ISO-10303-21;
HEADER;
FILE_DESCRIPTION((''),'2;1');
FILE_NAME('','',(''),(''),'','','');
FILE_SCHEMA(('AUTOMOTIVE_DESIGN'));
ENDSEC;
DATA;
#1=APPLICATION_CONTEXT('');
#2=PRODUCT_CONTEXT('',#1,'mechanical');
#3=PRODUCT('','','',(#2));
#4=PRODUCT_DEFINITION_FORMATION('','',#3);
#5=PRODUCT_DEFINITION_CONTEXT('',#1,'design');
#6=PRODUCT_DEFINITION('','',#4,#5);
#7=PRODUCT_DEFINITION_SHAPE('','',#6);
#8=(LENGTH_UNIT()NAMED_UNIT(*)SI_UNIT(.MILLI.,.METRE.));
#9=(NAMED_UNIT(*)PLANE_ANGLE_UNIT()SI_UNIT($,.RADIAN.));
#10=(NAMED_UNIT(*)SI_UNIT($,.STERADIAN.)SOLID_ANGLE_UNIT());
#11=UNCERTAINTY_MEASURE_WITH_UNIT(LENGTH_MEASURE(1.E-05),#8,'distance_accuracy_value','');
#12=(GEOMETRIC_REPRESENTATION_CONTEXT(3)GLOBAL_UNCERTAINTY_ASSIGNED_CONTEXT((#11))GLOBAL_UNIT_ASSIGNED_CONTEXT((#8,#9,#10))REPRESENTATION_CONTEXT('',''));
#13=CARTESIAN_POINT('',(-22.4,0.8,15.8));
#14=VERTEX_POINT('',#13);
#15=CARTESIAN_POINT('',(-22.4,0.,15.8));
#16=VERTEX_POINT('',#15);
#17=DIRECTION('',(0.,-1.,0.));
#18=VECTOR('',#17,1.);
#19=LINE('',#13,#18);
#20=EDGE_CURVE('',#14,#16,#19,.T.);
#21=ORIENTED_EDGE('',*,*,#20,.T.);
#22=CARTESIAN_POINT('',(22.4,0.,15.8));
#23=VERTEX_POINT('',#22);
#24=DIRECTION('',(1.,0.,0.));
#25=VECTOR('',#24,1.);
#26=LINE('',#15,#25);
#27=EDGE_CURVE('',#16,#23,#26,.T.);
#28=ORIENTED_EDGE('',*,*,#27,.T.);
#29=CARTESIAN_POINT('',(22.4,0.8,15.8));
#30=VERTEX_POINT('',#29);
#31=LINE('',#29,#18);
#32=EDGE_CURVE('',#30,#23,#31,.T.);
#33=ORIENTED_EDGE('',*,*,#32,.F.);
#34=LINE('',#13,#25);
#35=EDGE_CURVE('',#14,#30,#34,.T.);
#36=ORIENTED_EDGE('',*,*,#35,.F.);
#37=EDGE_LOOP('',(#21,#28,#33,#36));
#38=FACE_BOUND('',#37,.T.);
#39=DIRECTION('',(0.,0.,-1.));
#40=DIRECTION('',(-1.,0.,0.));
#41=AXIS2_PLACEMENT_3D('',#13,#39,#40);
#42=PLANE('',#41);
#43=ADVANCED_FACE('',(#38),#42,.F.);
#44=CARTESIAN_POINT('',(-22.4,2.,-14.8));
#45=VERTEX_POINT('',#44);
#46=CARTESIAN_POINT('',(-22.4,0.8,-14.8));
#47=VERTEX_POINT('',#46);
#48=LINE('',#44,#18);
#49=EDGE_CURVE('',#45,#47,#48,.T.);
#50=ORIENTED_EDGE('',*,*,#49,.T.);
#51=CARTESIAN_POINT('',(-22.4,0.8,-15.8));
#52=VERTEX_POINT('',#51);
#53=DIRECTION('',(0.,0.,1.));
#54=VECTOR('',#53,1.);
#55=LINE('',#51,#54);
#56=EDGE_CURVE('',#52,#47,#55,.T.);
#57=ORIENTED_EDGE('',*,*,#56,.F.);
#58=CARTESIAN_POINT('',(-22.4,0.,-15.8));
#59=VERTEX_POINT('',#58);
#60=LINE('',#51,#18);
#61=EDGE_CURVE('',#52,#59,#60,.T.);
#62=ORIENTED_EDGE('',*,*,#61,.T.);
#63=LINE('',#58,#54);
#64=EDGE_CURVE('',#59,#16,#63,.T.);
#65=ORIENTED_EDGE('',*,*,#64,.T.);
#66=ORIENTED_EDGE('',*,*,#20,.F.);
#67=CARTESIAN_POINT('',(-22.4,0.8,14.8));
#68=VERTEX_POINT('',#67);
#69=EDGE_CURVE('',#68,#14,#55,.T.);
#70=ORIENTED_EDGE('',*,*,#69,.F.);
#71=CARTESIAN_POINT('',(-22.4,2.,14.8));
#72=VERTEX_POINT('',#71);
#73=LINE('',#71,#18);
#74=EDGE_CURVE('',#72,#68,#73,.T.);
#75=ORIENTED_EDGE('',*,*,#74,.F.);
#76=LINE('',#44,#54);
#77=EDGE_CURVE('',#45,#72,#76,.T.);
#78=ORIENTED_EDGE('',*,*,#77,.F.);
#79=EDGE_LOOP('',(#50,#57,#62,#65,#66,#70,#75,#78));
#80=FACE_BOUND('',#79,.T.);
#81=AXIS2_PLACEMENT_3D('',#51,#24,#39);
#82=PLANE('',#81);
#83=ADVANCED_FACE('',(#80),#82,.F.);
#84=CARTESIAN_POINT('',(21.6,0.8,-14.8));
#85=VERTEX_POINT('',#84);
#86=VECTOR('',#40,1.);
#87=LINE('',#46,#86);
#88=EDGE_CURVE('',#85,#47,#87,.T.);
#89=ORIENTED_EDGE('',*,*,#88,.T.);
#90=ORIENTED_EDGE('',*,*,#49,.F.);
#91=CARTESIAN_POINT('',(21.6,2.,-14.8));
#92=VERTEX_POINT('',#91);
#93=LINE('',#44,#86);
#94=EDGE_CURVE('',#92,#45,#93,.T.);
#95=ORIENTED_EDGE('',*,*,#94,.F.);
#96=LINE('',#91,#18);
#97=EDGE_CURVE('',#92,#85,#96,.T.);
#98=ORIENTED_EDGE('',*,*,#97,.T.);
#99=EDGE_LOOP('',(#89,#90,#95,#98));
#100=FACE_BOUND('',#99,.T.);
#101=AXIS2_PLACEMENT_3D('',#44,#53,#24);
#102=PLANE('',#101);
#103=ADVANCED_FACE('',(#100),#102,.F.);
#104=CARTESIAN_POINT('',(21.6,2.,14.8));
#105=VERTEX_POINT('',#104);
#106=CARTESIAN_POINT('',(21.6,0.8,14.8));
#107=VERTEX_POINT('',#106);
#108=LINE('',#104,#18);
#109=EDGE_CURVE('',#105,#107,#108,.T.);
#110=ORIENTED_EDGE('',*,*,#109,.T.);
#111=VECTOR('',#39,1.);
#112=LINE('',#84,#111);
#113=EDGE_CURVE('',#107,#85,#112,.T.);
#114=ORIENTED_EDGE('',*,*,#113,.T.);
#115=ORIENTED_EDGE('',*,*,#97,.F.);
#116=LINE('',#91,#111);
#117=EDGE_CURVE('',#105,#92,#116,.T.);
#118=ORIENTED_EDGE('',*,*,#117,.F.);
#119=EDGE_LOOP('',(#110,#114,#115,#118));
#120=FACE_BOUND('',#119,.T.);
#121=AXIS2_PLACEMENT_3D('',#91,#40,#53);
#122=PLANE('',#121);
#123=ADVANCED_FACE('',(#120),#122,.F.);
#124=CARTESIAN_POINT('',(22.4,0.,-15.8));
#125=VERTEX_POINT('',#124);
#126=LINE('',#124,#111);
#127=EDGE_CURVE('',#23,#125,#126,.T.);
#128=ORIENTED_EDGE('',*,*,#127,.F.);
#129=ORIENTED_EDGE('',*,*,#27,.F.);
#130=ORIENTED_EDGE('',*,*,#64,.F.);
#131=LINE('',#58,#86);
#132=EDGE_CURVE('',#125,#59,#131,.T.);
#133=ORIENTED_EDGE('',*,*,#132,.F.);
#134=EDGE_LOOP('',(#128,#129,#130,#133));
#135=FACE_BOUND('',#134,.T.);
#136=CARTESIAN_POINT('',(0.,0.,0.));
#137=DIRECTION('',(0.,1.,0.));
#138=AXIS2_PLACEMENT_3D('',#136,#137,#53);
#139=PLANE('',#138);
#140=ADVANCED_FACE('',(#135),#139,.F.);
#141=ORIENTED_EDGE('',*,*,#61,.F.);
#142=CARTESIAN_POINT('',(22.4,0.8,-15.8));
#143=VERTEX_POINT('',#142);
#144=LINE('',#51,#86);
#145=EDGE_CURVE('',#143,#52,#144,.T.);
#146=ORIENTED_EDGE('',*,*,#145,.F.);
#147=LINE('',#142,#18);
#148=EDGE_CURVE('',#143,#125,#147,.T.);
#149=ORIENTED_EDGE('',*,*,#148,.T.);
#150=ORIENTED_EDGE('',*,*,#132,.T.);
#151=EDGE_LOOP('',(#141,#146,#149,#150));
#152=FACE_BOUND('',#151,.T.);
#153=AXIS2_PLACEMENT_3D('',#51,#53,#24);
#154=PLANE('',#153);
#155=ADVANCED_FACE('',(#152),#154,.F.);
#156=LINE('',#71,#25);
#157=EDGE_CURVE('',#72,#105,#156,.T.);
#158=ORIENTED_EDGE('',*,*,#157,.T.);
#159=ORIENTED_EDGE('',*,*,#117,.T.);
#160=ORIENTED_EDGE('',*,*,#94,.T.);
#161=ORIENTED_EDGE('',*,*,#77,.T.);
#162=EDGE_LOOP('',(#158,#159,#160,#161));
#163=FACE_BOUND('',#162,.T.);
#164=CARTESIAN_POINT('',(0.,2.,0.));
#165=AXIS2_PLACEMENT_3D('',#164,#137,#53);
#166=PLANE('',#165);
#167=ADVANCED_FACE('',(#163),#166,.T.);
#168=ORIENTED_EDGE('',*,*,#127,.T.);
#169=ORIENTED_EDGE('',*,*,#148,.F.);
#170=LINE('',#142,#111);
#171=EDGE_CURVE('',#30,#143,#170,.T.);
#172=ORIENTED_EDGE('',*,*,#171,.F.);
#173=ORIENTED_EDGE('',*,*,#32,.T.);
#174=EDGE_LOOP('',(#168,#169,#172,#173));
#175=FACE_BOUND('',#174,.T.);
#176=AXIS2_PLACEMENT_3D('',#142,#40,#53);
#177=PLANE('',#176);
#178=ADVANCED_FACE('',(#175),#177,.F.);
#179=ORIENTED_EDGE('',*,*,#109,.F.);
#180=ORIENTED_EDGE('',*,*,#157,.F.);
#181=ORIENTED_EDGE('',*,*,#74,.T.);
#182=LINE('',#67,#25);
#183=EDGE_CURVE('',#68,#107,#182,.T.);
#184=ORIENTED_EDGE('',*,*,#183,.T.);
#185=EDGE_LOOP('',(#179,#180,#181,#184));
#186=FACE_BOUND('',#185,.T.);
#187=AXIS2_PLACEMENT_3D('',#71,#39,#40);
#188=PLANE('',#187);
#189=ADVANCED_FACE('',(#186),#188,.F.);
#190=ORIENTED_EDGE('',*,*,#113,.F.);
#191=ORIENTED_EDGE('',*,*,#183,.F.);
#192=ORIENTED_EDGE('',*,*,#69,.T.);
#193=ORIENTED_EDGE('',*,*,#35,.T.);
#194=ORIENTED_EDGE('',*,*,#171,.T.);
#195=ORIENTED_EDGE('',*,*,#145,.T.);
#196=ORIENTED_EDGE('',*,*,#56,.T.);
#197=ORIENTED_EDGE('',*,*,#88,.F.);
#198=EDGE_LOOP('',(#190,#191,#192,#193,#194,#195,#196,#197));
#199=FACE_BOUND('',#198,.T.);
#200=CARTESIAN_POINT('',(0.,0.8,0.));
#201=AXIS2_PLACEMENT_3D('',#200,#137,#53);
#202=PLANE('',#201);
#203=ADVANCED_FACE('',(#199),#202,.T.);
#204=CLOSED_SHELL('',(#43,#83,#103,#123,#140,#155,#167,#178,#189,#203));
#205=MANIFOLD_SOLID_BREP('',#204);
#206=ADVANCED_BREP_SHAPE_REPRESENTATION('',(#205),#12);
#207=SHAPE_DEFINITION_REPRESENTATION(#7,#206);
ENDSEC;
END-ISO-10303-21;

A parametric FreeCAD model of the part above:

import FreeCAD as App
import Part
import Sketcher
from FreeCAD import Vector

doc = App.newDocument("Part")
body = doc.addObject("PartDesign::Body", "Body")

sketch1 = body.newObject("Sketcher::SketchObject", "Sketch")
sketch1.AttachmentSupport = (doc.getObject("XZ_Plane"), [""])
sketch1.MapMode = "FlatFace"
sketch1.addGeometry([
    Part.LineSegment(Vector(-22, -16, 0), Vector(-22, 16, 0)),
    Part.LineSegment(Vector(-22, 16, 0), Vector(22, 16, 0)),
    Part.LineSegment(Vector(22, 16, 0), Vector(22, -16, 0)),
    Part.LineSegment(Vector(22, -16, 0), Vector(-22, -16, 0)),
], False)
sketch1.addConstraint([
    Sketcher.Constraint("Coincident", 0, 2, 1, 1),
    Sketcher.Constraint("Coincident", 1, 2, 2, 1),
    Sketcher.Constraint("Coincident", 2, 2, 3, 1),
    Sketcher.Constraint("Coincident", 3, 2, 0, 1),
    Sketcher.Constraint("Vertical", 0),
    Sketcher.Constraint("Horizontal", 1),
    Sketcher.Constraint("Vertical", 2),
    Sketcher.Constraint("Horizontal", 3),
    Sketcher.Constraint("Symmetric", 0, 2, 2, 2, -1, 1),
    Sketcher.Constraint("DistanceX", 1, 1, 1, 2, 44.8),
    Sketcher.Constraint("DistanceY", 0, 1, 0, 2, 31.6),
])
pad1 = body.newObject("PartDesign::Pad", "Pad")
pad1.Profile = sketch1
pad1.Length = 0.8
pad1.Reversed = True

sketch2 = body.newObject("Sketcher::SketchObject", "Sketch001")
sketch2.AttachmentSupport = (doc.getObject("XZ_Plane"), [""])
sketch2.MapMode = "FlatFace"
sketch2.AttachmentOffset = App.Placement(Vector(0, 0, -0.8), App.Rotation())
sketch2.addGeometry([
    Part.LineSegment(Vector(-22, -15, 0), Vector(-22, 15, 0)),
    Part.LineSegment(Vector(-22, 15, 0), Vector(22, 15, 0)),
    Part.LineSegment(Vector(22, 15, 0), Vector(22, -15, 0)),
    Part.LineSegment(Vector(22, -15, 0), Vector(-22, -15, 0)),
], False)
sketch2.addConstraint([
    Sketcher.Constraint("Coincident", 0, 2, 1, 1),
    Sketcher.Constraint("Coincident", 1, 2, 2, 1),
    Sketcher.Constraint("Coincident", 2, 2, 3, 1),
    Sketcher.Constraint("Coincident", 3, 2, 0, 1),
    Sketcher.Constraint("Vertical", 0),
    Sketcher.Constraint("Horizontal", 1),
    Sketcher.Constraint("Vertical", 2),
    Sketcher.Constraint("Horizontal", 3),
    Sketcher.Constraint("DistanceX", 1, 1, 1, 2, 44.0),
    Sketcher.Constraint("DistanceY", 0, 1, 0, 2, 29.6),
    Sketcher.Constraint("DistanceX", 0, 2, -1, 1, 22.4),
    Sketcher.Constraint("DistanceY", -1, 1, 0, 2, 14.8),
])
pad2 = body.newObject("PartDesign::Pad", "Pad001")
pad2.Profile = sketch2
pad2.Length = 1.2
pad2.Reversed = True

doc.recompute()
